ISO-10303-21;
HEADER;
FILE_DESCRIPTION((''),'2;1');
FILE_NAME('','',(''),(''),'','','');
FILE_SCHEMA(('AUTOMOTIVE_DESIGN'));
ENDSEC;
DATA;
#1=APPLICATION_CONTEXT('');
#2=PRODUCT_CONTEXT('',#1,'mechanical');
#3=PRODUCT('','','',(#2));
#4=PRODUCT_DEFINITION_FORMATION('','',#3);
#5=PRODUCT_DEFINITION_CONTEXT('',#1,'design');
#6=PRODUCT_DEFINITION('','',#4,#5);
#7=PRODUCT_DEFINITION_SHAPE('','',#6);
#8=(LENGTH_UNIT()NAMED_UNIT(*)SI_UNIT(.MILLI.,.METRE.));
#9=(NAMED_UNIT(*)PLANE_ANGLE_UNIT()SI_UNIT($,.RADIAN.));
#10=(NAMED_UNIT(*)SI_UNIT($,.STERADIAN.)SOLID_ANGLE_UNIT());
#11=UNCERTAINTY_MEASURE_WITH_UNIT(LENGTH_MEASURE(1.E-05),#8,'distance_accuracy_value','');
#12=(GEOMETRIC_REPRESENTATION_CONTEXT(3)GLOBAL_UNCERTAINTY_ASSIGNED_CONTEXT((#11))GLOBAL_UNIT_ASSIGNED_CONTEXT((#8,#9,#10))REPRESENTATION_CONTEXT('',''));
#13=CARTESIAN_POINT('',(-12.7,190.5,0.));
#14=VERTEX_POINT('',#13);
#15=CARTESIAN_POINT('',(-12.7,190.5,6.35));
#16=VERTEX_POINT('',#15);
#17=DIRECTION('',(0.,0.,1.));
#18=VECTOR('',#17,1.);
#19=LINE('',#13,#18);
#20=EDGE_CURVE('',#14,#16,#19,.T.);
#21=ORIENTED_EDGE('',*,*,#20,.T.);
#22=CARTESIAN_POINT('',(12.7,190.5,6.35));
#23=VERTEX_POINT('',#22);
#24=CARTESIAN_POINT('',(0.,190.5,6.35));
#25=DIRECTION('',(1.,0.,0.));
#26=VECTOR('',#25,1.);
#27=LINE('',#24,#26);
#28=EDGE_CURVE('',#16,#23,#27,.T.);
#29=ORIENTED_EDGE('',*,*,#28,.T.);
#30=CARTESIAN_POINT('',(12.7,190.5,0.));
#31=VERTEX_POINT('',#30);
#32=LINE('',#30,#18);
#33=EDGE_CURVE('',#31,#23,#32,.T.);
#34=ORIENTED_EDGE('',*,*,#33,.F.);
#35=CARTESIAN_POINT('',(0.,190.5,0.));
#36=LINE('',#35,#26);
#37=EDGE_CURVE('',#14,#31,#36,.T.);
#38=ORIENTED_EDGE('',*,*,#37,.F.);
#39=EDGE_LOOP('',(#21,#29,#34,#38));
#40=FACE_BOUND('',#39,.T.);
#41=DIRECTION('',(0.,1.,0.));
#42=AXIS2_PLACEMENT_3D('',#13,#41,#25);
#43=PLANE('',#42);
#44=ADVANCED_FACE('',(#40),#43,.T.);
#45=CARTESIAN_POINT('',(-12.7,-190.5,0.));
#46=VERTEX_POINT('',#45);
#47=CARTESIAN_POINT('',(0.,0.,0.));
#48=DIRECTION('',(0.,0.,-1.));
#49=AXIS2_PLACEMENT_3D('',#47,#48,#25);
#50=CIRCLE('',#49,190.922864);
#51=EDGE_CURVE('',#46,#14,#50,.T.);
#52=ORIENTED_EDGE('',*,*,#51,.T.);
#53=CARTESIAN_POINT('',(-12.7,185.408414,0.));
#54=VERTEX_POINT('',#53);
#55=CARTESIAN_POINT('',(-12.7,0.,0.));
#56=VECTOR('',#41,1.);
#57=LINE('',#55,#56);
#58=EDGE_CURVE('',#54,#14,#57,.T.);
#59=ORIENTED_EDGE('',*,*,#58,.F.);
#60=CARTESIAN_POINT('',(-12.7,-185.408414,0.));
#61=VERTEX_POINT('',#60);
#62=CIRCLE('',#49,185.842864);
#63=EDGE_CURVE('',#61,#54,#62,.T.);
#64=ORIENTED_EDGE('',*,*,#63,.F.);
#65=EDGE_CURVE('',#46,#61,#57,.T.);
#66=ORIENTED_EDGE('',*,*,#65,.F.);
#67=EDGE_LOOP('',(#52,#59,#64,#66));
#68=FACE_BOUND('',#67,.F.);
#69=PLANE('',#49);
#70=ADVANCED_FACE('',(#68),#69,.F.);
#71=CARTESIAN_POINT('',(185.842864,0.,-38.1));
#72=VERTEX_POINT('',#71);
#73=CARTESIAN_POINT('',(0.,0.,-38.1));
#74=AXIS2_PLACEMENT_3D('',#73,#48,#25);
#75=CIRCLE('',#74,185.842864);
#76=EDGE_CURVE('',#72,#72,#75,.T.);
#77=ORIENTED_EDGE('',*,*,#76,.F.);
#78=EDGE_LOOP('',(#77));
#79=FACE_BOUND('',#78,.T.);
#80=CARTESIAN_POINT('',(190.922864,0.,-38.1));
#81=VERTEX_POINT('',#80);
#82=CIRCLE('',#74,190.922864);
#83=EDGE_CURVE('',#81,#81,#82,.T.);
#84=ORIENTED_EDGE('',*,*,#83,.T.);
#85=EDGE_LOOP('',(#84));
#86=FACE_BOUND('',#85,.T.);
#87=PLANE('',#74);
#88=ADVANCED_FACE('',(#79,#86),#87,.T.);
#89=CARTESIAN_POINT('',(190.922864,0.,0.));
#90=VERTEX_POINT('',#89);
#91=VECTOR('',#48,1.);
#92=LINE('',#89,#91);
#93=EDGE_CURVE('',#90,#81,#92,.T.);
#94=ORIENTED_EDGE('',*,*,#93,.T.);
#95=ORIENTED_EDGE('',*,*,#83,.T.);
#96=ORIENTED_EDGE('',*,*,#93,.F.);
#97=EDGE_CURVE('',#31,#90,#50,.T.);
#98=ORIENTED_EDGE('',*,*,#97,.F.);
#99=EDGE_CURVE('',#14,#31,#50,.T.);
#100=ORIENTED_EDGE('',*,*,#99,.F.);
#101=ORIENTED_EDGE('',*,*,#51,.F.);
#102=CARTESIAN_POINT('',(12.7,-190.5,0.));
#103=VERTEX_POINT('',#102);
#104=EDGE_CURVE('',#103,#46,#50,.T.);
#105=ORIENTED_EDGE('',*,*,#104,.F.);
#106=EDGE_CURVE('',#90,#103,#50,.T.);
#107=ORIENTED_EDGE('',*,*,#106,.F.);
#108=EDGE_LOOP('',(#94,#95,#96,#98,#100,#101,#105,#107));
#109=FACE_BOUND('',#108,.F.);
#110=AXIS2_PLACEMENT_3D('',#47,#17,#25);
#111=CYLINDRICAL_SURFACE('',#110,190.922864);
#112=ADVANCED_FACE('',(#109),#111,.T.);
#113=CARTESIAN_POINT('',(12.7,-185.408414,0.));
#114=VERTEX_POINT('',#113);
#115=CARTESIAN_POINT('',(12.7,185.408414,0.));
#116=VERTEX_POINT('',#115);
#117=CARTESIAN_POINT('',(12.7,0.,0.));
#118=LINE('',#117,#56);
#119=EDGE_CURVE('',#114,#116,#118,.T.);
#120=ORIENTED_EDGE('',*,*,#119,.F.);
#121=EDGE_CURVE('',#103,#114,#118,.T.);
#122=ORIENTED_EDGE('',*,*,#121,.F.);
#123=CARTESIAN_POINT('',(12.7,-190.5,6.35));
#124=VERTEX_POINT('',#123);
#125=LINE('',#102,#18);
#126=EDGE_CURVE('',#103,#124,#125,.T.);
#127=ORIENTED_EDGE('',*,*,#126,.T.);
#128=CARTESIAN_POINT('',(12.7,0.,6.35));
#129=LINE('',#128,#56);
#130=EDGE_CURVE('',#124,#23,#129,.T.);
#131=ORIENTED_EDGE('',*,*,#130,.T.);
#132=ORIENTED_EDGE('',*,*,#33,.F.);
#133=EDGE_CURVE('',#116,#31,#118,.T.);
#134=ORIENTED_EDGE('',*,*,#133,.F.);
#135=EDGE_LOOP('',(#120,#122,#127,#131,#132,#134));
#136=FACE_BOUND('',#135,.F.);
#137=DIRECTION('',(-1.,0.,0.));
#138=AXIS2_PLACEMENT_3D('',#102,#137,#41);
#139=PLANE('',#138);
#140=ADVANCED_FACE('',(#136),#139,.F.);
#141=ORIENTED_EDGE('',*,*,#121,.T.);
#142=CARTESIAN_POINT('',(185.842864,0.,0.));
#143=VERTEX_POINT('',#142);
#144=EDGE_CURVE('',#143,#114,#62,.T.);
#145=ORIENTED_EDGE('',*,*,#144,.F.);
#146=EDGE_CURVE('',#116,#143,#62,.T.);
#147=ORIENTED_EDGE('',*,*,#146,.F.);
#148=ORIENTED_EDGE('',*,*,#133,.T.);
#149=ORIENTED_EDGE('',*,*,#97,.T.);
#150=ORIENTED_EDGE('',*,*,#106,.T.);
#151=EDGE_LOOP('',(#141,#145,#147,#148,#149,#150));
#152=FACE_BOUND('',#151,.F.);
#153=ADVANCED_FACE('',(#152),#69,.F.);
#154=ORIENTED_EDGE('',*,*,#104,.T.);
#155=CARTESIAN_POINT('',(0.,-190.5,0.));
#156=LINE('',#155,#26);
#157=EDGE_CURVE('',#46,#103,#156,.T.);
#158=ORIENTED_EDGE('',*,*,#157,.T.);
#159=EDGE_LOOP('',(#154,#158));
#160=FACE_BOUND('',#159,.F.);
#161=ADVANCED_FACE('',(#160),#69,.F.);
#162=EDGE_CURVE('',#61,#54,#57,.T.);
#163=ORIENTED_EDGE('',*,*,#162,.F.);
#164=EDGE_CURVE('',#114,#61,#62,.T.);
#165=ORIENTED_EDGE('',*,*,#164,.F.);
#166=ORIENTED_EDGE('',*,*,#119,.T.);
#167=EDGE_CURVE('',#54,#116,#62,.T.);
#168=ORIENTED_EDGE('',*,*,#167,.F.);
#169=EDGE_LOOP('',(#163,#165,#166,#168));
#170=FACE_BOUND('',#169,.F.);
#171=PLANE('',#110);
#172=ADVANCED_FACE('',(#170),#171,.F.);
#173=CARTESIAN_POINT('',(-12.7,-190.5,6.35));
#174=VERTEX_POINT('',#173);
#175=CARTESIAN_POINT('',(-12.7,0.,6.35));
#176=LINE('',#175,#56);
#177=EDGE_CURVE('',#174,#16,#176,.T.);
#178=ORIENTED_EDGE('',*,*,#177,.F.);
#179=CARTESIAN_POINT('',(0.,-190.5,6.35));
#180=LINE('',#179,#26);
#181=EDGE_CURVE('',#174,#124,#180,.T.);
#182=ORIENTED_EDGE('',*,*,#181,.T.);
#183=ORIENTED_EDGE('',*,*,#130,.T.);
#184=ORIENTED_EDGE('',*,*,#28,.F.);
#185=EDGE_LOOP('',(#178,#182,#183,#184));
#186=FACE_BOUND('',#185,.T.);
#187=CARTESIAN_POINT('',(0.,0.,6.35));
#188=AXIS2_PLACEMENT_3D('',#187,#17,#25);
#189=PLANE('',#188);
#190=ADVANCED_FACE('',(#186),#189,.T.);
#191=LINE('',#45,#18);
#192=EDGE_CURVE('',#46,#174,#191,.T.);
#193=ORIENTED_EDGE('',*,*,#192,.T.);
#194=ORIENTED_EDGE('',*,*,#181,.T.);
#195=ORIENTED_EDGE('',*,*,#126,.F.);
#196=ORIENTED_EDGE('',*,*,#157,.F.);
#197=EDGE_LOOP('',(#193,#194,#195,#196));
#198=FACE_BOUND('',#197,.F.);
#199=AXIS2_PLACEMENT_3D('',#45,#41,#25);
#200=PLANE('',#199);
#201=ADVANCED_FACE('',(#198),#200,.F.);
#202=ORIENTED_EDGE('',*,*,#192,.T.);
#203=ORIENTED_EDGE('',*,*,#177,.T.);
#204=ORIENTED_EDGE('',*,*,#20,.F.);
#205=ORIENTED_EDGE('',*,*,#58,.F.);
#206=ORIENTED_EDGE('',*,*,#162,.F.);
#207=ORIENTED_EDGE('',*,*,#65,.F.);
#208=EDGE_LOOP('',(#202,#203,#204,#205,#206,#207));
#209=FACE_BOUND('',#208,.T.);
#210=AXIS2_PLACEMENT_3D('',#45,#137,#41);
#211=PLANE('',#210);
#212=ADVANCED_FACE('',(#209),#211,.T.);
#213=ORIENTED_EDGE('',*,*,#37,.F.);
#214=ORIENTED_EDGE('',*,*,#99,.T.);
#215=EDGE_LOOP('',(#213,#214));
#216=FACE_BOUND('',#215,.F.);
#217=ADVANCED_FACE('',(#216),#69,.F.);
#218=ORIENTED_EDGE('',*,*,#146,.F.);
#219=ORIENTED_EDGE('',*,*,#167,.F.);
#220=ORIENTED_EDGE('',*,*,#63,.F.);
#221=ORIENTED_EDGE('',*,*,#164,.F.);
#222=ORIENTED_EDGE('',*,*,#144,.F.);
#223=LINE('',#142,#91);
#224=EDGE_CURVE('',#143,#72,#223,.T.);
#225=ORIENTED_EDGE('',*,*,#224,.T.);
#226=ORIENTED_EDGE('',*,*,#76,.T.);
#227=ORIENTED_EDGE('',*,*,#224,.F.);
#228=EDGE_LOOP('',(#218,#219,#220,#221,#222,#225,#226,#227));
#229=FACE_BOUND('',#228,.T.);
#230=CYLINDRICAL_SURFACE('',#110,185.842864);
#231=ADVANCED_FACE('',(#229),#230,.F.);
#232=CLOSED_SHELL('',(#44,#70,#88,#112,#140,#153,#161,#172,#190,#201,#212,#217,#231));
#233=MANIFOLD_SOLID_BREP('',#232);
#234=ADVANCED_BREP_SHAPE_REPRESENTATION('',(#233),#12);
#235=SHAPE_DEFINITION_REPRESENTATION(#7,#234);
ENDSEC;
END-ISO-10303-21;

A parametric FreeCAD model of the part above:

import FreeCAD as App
import Part
import Sketcher

V = App.Vector
Q = App.Units.Quantity


def add_polygon(sketch, points):
    """Adds a closed chain of lines whose ends are joined by coincident constraints."""
    first, n = sketch.GeometryCount, len(points)
    for a, b in zip(points, points[1:] + points[:1]):
        sketch.addGeometry(Part.LineSegment(App.Vector(*a, 0), App.Vector(*b, 0)), False)
    for i in range(n):
        sketch.addConstraint(Sketcher.Constraint("Coincident", first + i, 2, first + (i + 1) % n, 1))

doc = App.newDocument("Part")
body = doc.addObject("PartDesign::Body", "Body")

sketch1 = doc.addObject("Sketcher::SketchObject", "Sketch")
body.addObject(sketch1)
sketch1.AttachmentSupport = (doc.XY_Plane, [""])
sketch1.MapMode = "FlatFace"
add_polygon(sketch1, [(-12.7, 190.5), (-12.7, -190.5), (12.7, -190.5), (12.7, 190.5)])
sketch1.addConstraint([
    Sketcher.Constraint("Vertical", 0),
    Sketcher.Constraint("Horizontal", 1),
    Sketcher.Constraint("Vertical", 2),
    Sketcher.Constraint("Horizontal", 3),
    Sketcher.Constraint("Symmetric", 0, 2, 2, 2, -1, 1),
    Sketcher.Constraint("DistanceX", 1, 1, 1, 2, Q("1 in")),
    Sketcher.Constraint("DistanceY", 0, 2, 0, 1, Q("15 in")),
])
pad1 = doc.addObject("PartDesign::Pad", "Pad")
body.addObject(pad1)
pad1.Profile = sketch1
pad1.Length = Q("0.25 in")

sketch2 = doc.addObject("Sketcher::SketchObject", "Sketch001")
body.addObject(sketch2)
sketch2.AttachmentSupport = (doc.XY_Plane, [""])
sketch2.MapMode = "FlatFace"
sketch2.addGeometry([
    Part.Circle(V(0, 0, 0), V(0, 0, 1), 190.922864),
    Part.Circle(V(0, 0, 0), V(0, 0, 1), 185.842864),
], False)
sketch2.addConstraint([
    Sketcher.Constraint("Coincident", 0, 3, -1, 1),
    Sketcher.Constraint("Coincident", 1, 3, -1, 1),
    Sketcher.Constraint("Diameter", 0, 381.845728),
    Sketcher.Constraint("Diameter", 1, 371.685728),
])
pad2 = doc.addObject("PartDesign::Pad", "Pad001")
body.addObject(pad2)
pad2.Profile = sketch2
pad2.Length = Q("1.5 in")
pad2.Reversed = True

doc.recompute()
